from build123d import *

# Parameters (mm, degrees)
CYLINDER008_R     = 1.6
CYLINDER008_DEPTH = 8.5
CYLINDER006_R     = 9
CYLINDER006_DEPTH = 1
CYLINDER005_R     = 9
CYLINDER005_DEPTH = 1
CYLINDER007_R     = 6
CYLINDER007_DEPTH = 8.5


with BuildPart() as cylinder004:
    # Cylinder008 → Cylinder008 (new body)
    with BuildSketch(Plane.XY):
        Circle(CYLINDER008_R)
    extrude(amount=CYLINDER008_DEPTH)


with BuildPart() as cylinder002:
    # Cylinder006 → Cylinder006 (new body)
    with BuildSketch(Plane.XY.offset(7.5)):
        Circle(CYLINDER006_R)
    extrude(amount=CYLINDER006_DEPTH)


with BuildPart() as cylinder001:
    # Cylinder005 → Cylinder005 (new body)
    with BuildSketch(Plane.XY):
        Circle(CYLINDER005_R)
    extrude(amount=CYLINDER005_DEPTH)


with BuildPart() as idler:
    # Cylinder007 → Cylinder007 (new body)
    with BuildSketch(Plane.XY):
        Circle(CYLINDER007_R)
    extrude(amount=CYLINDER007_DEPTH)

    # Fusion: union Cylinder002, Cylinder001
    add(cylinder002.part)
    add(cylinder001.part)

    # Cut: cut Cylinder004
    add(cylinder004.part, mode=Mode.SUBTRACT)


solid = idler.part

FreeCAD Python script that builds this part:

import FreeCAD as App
import Part
import Sketcher
from FreeCAD import Vector
Q = App.Units.Quantity

doc = App.newDocument("Part")
body = doc.addObject("PartDesign::Body", "Body")

sketch1 = body.newObject("Sketcher::SketchObject", "Sketch")
sketch1.AttachmentSupport = (doc.getObject("XY_Plane"), [""])
sketch1.MapMode = "FlatFace"
sketch1.addGeometry(Part.Circle(Vector(0, 0, 0), Vector(0, 0, 1), 1.6), False)
sketch1.addConstraint(Sketcher.Constraint("Coincident", 0, 3, -1, 1))
sketch1.addConstraint(Sketcher.Constraint("Diameter", 0, Q("3.2 mm")))
pad1 = body.newObject("PartDesign::Pad", "Pad")
pad1.Profile = sketch1
pad1.Length = 8.5
body2 = doc.addObject("PartDesign::Body", "Body001")

sketch2 = body2.newObject("Sketcher::SketchObject", "Sketch001")
sketch2.AttachmentSupport = (doc.getObject("XY_Plane001"), [""])
sketch2.MapMode = "FlatFace"
sketch2.AttachmentOffset = App.Placement(Vector(0, 0, 7.5), App.Rotation())
sketch2.addGeometry(Part.Circle(Vector(0, 0, 0), Vector(0, 0, 1), 9), False)
sketch2.addConstraint(Sketcher.Constraint("Coincident", 0, 3, -1, 1))
sketch2.addConstraint(Sketcher.Constraint("Diameter", 0, Q("18 mm")))
pad2 = body2.newObject("PartDesign::Pad", "Pad001")
pad2.Profile = sketch2
pad2.Length = 1
body3 = doc.addObject("PartDesign::Body", "Body002")

sketch3 = body3.newObject("Sketcher::SketchObject", "Sketch002")
sketch3.AttachmentSupport = (doc.getObject("XY_Plane002"), [""])
sketch3.MapMode = "FlatFace"
sketch3.addGeometry(Part.Circle(Vector(0, 0, 0), Vector(0, 0, 1), 9), False)
sketch3.addConstraint(Sketcher.Constraint("Coincident", 0, 3, -1, 1))
sketch3.addConstraint(Sketcher.Constraint("Diameter", 0, Q("18 mm")))
pad3 = body3.newObject("PartDesign::Pad", "Pad002")
pad3.Profile = sketch3
pad3.Length = 1
body4 = doc.addObject("PartDesign::Body", "Body003")

sketch4 = body4.newObject("Sketcher::SketchObject", "Sketch003")
sketch4.AttachmentSupport = (doc.getObject("XY_Plane003"), [""])
sketch4.MapMode = "FlatFace"
sketch4.addGeometry(Part.Circle(Vector(0, 0, 0), Vector(0, 0, 1), 6), False)
sketch4.addConstraint(Sketcher.Constraint("Coincident", 0, 3, -1, 1))
sketch4.addConstraint(Sketcher.Constraint("Diameter", 0, Q("12 mm")))
pad4 = body4.newObject("PartDesign::Pad", "Pad003")
pad4.Profile = sketch4
pad4.Length = 8.5
doc.recompute()

boolean = body4.newObject("PartDesign::Boolean", "Boolean")
boolean.Type = "Fuse"
boolean.addObjects([body2])
doc.recompute()

boolean2 = body4.newObject("PartDesign::Boolean", "Boolean001")
boolean2.Type = "Fuse"
boolean2.addObjects([body3])
doc.recompute()

boolean3 = body4.newObject("PartDesign::Boolean", "Boolean002")
boolean3.Type = "Cut"
boolean3.addObjects([body])

doc.recompute()
